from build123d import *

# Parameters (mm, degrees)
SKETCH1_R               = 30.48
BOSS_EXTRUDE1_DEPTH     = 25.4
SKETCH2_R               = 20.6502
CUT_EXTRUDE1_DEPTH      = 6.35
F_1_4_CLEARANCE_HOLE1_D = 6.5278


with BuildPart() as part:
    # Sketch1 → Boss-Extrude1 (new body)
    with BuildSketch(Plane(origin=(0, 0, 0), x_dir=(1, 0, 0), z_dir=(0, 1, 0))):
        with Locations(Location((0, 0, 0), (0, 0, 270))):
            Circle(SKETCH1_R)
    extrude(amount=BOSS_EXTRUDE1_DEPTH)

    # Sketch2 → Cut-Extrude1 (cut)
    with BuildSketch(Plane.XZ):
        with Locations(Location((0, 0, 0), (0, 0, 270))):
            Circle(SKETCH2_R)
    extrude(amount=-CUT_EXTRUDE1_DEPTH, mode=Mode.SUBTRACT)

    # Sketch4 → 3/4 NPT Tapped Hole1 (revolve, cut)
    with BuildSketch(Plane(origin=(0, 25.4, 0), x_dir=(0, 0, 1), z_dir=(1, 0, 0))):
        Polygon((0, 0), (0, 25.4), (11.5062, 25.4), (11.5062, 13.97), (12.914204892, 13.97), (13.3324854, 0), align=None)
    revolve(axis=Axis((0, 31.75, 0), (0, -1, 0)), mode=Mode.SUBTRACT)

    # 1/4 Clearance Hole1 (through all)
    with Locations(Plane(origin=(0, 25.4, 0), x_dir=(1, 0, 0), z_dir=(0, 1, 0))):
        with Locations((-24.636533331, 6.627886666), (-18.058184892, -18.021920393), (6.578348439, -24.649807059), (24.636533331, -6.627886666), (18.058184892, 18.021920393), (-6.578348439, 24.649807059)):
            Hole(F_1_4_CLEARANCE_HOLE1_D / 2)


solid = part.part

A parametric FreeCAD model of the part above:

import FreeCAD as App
import Part
import Sketcher
Q = App.Units.Quantity


def add_polygon(sketch, points):
    """Adds a closed chain of lines whose ends are joined by coincident constraints."""
    first, n = sketch.GeometryCount, len(points)
    for a, b in zip(points, points[1:] + points[:1]):
        sketch.addGeometry(Part.LineSegment(App.Vector(*a, 0), App.Vector(*b, 0)), False)
    for i in range(n):
        sketch.addConstraint(Sketcher.Constraint("Coincident", first + i, 2, first + (i + 1) % n, 1))

doc = App.newDocument("Part")
params = doc.addObject("Spreadsheet::Sheet", "Params")
for row, (alias, value) in enumerate([
    ("sketch1_diameter", "2.4 in"),
    ("pad1_length", "1 in"),
    ("sketch2_diameter", "1.626 in"),
    ("pocket1_length", "0.25 in"),
    ("sketch3_width", "1 in"),
    ("sketch3_width2", "0.45 in"),
    ("sketch3_height", "0.453 in"),
    ("groove_angle", "360 deg"),
    ("sketch4_diameter", "0.257 in"),
    ("hole_diameter", "0.257 in"),
], start=1):
    params.set(f"A{row}", alias)
    params.set(f"B{row}", "=" + value)
    params.setAlias(f"B{row}", alias)

body = doc.addObject("PartDesign::Body", "Body")

# Sketch on XZ plane
sketch1 = body.newObject("Sketcher::SketchObject", "Sketch")
sketch1.AttachmentSupport = (doc.getObject("XZ_Plane"), [""])
sketch1.MapMode = "FlatFace"
sketch1.addGeometry(Part.Circle(App.Vector(0, 0, 0), App.Vector(0, 0, 1), 30), False)
sketch1.addConstraint([
    Sketcher.Constraint("Coincident", 0, 3, -1, 1),
    Sketcher.Constraint("Diameter", 0, Q("2.4 in")),
])
sketch1.setExpression("Constraints[1]", "Params.sketch1_diameter")
pad1 = body.newObject("PartDesign::Pad", "Pad")
pad1.Profile = sketch1
pad1.setExpression("Length", "Params.pad1_length")
pad1.Reversed = True

# Sketch on XZ plane
sketch2 = body.newObject("Sketcher::SketchObject", "Sketch001")
sketch2.AttachmentSupport = (doc.getObject("XZ_Plane"), [""])
sketch2.MapMode = "FlatFace"
sketch2.addGeometry(Part.Circle(App.Vector(0, 0, 0), App.Vector(0, 0, 1), 21), False)
sketch2.addConstraint([
    Sketcher.Constraint("Coincident", 0, 3, -1, 1),
    Sketcher.Constraint("Diameter", 0, Q("1.626 in")),
])
sketch2.setExpression("Constraints[1]", "Params.sketch2_diameter")
pocket1 = body.newObject("PartDesign::Pocket", "Pocket")
pocket1.Profile = sketch2
pocket1.setExpression("Length", "Params.pocket1_length")

# Sketch on YZ plane
sketch3 = body.newObject("Sketcher::SketchObject", "Sketch002")
sketch3.AttachmentSupport = (doc.getObject("YZ_Plane"), [""])
sketch3.MapMode = "FlatFace"
add_polygon(sketch3, [(0, 0), (25.4, 0), (25.4, 13.3), (11.4, 12.9), (11.4, 11.5), (0, 11.5)])  # lines 0-5
sketch3.addConstraint([
    Sketcher.Constraint("Horizontal", 0),
    Sketcher.Constraint("Vertical", 1),
    Sketcher.Constraint("Vertical", 3),
    Sketcher.Constraint("Horizontal", 4),
    Sketcher.Constraint("Vertical", 5),
    Sketcher.Constraint("Coincident", 5, 2, -1, 1),
    Sketcher.Constraint("DistanceX", 0, 1, 0, 2, Q("1 in")),
    Sketcher.Constraint("DistanceX", 4, 2, 4, 1, Q("0.45 in")),
    Sketcher.Constraint("DistanceY", 5, 2, 5, 1, Q("0.453 in")),
    Sketcher.Constraint("Distance", 2, Q("13.976261 mm")),
    Sketcher.Constraint("DistanceY", 1, 1, 1, 2, Q("13.332485 mm")),
])
sketch3.setExpression("Constraints[12]", "Params.sketch3_width")
sketch3.setExpression("Constraints[13]", "Params.sketch3_width2")
sketch3.setExpression("Constraints[14]", "Params.sketch3_height")
groove = body.newObject("PartDesign::Groove", "Groove")
groove.Profile = sketch3
groove.ReferenceAxis = (sketch3, ["H_Axis"])
groove.setExpression("Angle", "Params.groove_angle")

# Sketch on XZ plane
sketch4 = body.newObject("Sketcher::SketchObject", "Sketch003")
sketch4.AttachmentSupport = (doc.getObject("XZ_Plane"), [""])
sketch4.MapMode = "FlatFace"
sketch4.AttachmentOffset = App.Placement(App.Vector(0, 0, -1 * 25.4), App.Rotation())
sketch4.addGeometry([
    Part.Circle(App.Vector(-24.6, -6.6, 0), App.Vector(0, 0, 1), 3.3),  # 0
    Part.Circle(App.Vector(-18.1, 18, 0), App.Vector(0, 0, 1), 3.3),  # 1
    Part.Circle(App.Vector(6.6, 24.6, 0), App.Vector(0, 0, 1), 3.3),  # 2
    Part.Circle(App.Vector(24.6, 6.6, 0), App.Vector(0, 0, 1), 3.3),  # 3
    Part.Circle(App.Vector(18.1, -18, 0), App.Vector(0, 0, 1), 3.3),  # 4
    Part.Circle(App.Vector(-6.6, -24.6, 0), App.Vector(0, 0, 1), 3.3),  # 5
], False)
sketch4.addConstraint([
    Sketcher.Constraint("Equal", 0, 1),
    Sketcher.Constraint("Equal", 1, 2),
    Sketcher.Constraint("Equal", 2, 3),
    Sketcher.Constraint("Equal", 3, 4),
    Sketcher.Constraint("Equal", 4, 5),
    Sketcher.Constraint("Symmetric", 0, 3, 3, 3, -1, 1),
    Sketcher.Constraint("Symmetric", 1, 3, 4, 3, -1, 1),
    Sketcher.Constraint("Symmetric", 2, 3, 5, 3, -1, 1),
    Sketcher.Constraint("Diameter", 0, Q("0.257 in")),
    Sketcher.Constraint("DistanceY", -1, 1, 1, 3, Q("18.02192 mm")),
    Sketcher.Constraint("DistanceX", -1, 1, 2, 3, Q("6.578348 mm")),
    Sketcher.Constraint("DistanceX", 0, 3, 1, 3, Q("6.578348 mm")),
    Sketcher.Constraint("DistanceX", 0, 3, 2, 3, Q("31.214882 mm")),
    Sketcher.Constraint("DistanceY", 3, 3, 2, 3, Q("18.02192 mm")),
    Sketcher.Constraint("DistanceY", 0, 3, -1, 1, Q("6.627887 mm")),
])
sketch4.setExpression("Constraints[8]", "Params.sketch4_diameter")
doc.recompute()
hole = body.newObject("PartDesign::Hole", "Hole")
hole.Profile = sketch4
hole.ThreadType = "None"
hole.setExpression("Diameter", "Params.hole_diameter")
hole.DepthType = "ThroughAll"
hole.Reversed = True

doc.recompute()
